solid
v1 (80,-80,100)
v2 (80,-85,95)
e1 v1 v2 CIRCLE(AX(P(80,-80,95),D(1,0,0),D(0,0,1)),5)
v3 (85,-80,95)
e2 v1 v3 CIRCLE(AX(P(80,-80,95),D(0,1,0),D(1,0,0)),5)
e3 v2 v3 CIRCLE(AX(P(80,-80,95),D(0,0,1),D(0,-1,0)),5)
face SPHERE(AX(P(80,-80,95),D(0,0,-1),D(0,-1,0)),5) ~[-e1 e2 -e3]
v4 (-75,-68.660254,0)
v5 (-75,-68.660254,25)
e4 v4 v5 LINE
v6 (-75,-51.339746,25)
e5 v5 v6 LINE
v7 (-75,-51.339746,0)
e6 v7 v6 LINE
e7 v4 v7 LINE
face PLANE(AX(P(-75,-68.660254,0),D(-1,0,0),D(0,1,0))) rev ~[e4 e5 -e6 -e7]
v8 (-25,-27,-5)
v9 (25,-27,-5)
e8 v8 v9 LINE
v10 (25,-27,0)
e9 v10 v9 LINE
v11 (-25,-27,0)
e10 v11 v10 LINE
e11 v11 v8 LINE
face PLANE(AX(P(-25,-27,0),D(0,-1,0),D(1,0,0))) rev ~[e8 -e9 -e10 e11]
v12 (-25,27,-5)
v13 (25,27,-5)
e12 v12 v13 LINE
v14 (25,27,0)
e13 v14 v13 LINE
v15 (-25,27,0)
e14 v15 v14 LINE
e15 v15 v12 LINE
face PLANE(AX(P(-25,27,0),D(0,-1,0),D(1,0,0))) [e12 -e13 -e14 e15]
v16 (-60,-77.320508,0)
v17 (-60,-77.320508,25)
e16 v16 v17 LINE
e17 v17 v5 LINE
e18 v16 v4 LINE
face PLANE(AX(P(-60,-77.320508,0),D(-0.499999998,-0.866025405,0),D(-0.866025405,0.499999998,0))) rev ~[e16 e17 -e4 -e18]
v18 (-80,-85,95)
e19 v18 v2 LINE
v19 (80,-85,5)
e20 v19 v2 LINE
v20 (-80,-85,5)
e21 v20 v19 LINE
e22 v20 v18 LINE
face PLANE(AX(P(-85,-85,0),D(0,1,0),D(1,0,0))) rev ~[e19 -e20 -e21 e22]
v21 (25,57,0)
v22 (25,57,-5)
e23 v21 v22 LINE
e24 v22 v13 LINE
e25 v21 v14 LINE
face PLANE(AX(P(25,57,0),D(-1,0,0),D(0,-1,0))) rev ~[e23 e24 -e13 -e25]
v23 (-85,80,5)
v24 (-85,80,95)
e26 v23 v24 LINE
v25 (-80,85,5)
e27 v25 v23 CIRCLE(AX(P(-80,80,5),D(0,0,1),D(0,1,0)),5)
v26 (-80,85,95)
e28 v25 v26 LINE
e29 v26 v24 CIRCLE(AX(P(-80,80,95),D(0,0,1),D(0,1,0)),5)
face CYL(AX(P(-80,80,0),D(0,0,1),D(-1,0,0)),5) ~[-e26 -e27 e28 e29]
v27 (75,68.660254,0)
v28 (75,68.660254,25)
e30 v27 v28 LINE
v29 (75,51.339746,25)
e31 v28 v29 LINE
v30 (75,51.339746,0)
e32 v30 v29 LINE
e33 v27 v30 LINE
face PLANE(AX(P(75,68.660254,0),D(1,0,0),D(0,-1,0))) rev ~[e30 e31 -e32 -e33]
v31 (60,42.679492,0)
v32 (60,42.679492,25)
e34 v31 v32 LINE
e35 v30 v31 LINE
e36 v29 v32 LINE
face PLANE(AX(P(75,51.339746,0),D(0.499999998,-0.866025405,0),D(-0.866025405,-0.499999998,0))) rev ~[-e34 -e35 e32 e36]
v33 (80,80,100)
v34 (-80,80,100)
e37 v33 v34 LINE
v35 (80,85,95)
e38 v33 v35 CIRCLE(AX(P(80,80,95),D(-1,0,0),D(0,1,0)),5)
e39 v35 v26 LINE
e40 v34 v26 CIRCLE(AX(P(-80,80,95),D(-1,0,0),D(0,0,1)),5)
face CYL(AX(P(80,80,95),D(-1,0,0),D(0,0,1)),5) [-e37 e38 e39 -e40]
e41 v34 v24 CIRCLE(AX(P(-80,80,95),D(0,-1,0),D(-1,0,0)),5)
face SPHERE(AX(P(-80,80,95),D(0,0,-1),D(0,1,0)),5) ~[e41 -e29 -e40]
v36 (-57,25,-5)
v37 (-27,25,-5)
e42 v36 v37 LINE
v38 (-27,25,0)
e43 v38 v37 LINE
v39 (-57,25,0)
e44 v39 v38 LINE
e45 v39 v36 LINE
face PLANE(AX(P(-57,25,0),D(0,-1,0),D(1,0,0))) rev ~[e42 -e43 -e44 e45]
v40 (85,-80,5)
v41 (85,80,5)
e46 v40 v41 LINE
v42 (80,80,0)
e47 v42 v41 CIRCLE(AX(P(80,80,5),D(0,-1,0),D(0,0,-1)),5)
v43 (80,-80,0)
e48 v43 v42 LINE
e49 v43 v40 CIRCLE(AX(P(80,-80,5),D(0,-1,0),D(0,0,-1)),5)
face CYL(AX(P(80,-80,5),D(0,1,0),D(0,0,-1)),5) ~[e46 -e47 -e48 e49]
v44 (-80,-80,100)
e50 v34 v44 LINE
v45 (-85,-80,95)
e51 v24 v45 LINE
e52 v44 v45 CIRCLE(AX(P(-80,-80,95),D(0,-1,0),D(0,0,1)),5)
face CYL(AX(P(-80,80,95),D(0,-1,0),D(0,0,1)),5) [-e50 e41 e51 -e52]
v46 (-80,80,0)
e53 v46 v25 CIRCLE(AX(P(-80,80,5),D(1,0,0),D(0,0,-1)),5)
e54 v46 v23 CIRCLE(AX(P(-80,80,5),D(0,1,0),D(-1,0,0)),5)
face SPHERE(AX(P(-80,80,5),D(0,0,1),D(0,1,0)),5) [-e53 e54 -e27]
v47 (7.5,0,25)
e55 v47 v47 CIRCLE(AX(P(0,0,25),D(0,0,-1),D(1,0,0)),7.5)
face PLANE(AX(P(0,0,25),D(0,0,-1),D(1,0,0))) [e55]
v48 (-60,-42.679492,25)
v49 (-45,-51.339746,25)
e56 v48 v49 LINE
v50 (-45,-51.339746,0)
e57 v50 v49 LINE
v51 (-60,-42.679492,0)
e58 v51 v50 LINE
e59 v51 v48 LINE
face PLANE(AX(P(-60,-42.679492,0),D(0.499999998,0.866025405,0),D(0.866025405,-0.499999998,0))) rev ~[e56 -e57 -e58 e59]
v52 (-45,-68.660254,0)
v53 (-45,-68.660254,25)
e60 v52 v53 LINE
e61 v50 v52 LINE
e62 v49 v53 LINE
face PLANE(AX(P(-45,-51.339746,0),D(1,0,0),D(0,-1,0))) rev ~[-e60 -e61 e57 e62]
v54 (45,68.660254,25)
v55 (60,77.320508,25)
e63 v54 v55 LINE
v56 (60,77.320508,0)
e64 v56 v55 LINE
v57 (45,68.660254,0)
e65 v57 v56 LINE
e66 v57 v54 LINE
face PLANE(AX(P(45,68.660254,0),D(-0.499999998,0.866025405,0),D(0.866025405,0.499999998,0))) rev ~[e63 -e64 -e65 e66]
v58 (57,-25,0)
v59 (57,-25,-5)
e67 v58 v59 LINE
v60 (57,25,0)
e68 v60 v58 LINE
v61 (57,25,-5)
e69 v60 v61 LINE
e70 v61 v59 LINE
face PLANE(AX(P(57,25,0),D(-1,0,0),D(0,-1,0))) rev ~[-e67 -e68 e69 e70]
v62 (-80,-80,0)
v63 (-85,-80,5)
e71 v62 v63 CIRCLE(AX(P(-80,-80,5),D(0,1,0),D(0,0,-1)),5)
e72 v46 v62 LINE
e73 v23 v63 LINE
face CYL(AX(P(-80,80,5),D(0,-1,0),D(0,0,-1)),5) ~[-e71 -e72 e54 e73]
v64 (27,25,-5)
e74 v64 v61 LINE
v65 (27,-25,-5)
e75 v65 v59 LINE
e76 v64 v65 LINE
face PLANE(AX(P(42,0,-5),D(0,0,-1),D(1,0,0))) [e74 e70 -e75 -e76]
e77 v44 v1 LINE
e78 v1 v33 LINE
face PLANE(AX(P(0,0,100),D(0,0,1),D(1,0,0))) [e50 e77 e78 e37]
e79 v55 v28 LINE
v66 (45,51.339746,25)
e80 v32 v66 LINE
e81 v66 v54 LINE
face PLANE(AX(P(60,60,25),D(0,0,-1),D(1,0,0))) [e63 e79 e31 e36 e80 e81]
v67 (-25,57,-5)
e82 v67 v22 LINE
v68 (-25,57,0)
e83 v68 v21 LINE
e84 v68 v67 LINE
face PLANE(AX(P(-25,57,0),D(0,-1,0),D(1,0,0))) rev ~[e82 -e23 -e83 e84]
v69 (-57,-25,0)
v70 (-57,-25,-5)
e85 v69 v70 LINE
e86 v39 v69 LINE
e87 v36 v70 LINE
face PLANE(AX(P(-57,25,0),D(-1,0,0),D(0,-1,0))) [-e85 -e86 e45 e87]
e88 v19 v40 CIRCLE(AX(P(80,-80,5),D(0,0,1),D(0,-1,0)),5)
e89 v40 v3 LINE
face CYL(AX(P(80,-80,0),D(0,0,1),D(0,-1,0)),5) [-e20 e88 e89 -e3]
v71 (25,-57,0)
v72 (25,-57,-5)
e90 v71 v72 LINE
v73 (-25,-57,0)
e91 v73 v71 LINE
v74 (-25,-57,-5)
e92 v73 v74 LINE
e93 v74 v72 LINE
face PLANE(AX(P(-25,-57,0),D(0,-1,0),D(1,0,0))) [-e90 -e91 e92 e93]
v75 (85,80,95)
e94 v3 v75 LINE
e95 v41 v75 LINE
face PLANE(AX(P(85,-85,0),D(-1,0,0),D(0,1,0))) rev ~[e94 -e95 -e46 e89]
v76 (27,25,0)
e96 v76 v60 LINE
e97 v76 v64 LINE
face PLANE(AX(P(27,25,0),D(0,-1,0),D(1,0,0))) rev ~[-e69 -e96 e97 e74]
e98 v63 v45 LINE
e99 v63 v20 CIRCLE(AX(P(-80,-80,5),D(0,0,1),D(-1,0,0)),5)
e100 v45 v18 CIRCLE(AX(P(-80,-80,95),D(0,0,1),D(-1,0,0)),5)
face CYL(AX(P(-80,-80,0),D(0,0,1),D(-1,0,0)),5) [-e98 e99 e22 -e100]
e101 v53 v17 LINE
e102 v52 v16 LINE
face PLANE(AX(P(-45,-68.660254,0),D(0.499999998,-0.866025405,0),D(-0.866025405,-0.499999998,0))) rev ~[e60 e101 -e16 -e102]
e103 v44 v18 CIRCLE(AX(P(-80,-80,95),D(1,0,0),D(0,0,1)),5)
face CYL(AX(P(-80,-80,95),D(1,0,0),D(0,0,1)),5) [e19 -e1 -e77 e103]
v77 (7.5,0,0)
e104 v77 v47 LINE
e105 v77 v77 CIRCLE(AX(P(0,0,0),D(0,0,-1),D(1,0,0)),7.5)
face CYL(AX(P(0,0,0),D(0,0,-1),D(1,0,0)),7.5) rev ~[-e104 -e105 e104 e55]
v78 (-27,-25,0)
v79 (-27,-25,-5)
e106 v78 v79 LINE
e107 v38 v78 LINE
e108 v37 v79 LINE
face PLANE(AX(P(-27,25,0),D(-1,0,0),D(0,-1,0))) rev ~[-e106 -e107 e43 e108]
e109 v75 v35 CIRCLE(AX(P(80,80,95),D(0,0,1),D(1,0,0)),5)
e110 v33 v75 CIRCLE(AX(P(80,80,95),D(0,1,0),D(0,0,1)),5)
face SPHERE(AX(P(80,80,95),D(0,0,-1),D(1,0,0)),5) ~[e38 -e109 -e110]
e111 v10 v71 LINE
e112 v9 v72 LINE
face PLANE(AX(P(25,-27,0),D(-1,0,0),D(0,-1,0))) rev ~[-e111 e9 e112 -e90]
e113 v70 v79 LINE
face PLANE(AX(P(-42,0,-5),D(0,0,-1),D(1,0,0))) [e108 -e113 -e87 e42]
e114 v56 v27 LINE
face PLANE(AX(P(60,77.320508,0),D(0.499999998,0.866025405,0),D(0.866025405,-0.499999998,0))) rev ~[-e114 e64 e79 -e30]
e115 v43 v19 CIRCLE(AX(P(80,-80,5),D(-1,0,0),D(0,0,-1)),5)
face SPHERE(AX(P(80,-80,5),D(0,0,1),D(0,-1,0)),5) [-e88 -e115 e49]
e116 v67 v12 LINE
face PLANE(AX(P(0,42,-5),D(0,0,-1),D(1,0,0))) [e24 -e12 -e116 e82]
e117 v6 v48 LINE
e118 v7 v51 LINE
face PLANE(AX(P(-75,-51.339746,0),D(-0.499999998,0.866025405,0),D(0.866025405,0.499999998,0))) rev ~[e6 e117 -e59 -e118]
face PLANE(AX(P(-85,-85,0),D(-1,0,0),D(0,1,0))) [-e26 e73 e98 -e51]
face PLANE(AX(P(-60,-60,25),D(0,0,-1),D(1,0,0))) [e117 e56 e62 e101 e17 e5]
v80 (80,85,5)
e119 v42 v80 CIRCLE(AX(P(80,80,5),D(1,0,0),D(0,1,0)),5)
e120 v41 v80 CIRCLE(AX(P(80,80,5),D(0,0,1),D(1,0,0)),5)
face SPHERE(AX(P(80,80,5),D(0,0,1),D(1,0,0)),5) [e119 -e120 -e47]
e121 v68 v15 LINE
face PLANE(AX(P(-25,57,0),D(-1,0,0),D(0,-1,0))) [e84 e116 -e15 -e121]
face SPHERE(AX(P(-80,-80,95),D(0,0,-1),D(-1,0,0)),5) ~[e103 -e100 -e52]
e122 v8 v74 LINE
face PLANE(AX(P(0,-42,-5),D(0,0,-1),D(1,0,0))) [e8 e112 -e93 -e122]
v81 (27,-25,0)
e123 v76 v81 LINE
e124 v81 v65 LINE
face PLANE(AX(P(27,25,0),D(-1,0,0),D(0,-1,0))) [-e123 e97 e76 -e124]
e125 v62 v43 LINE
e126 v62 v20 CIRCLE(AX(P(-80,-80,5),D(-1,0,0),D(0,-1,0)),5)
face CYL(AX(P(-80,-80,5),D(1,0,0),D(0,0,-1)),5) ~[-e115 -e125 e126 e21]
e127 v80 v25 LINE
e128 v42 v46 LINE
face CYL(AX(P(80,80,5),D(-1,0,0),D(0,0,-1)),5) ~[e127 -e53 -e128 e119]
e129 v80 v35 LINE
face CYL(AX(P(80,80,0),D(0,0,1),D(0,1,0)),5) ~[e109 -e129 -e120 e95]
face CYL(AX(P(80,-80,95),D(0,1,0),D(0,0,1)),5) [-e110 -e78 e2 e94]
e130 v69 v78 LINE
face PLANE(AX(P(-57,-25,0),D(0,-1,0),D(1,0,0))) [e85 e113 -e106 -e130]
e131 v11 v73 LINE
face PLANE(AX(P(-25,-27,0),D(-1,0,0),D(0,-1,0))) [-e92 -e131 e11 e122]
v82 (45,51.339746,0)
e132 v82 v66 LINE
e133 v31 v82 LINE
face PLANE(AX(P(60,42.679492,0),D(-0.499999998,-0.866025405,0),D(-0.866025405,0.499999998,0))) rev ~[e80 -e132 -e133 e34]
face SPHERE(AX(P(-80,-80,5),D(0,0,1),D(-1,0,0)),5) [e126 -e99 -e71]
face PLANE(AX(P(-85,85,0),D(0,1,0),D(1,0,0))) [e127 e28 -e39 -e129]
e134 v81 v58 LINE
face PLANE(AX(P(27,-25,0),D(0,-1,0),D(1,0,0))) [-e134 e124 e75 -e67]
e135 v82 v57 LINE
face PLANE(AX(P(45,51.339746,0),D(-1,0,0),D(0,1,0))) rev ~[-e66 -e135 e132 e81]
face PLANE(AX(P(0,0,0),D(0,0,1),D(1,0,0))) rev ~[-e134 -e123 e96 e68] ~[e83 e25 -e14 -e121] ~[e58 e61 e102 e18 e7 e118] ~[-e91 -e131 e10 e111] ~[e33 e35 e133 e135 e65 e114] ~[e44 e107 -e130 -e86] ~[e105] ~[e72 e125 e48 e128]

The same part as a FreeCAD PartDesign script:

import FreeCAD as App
import Part
import Sketcher
from FreeCAD import Vector
Q = App.Units.Quantity


def edges_at(feature, points):
    """Names of the edges that pass closest to the given points."""
    edges = feature.Shape.Edges
    near = lambda p: min(range(len(edges)), key=lambda i: edges[i].distToShape(Part.Vertex(*p))[0])
    return sorted({f"Edge{near(p) + 1}" for p in points})

doc = App.newDocument("Part")
params = doc.addObject("Spreadsheet::Sheet", "Params")
for row, (alias, value) in enumerate([
    ("sketch1_width", "170 mm"),
    ("pad1_length", "100 mm"),
    ("sketch2_diameter", "15 mm"),
    ("pocket1_length", "25 mm"),
    ("fillet_radius", "5 mm"),
    ("fillet2_radius", "5 mm"),
    ("sketch3_width", "50 mm"),
    ("sketch3_width2", "30 mm"),
    ("pad2_length", "5 mm"),
], start=1):
    params.set(f"A{row}", alias)
    params.set(f"B{row}", "=" + value)
    params.setAlias(f"B{row}", alias)

body = doc.addObject("PartDesign::Body", "Body")

sketch1 = body.newObject("Sketcher::SketchObject", "Sketch")
sketch1.AttachmentSupport = (doc.getObject("XY_Plane"), [""])
sketch1.MapMode = "FlatFace"
sketch1.addGeometry([
    Part.LineSegment(Vector(-85, 85, 0), Vector(-85, -85, 0)),
    Part.LineSegment(Vector(-85, -85, 0), Vector(85, -85, 0)),
    Part.LineSegment(Vector(85, -85, 0), Vector(85, 85, 0)),
    Part.LineSegment(Vector(85, 85, 0), Vector(-85, 85, 0)),
], False)
sketch1.addConstraint([
    Sketcher.Constraint("Coincident", 0, 2, 1, 1),
    Sketcher.Constraint("Coincident", 1, 2, 2, 1),
    Sketcher.Constraint("Coincident", 2, 2, 3, 1),
    Sketcher.Constraint("Coincident", 3, 2, 0, 1),
    Sketcher.Constraint("Vertical", 0),
    Sketcher.Constraint("Horizontal", 1),
    Sketcher.Constraint("Vertical", 2),
    Sketcher.Constraint("Horizontal", 3),
    Sketcher.Constraint("Symmetric", 0, 2, 2, 2, -1, 1),
    Sketcher.Constraint("Equal", 3, 0),
    Sketcher.Constraint("DistanceX", 1, 1, 1, 2, Q("170 mm")),
])
sketch1.setExpression("Constraints[10]", "Params.sketch1_width")
pad1 = body.newObject("PartDesign::Pad", "Pad")
pad1.Profile = sketch1
pad1.setExpression("Length", "Params.pad1_length")

sketch2 = body.newObject("Sketcher::SketchObject", "Sketch001")
sketch2.AttachmentSupport = (doc.getObject("XY_Plane"), [""])
sketch2.MapMode = "FlatFace"
sketch2.addGeometry([
    Part.Circle(Vector(0, 0, 0), Vector(0, 0, 1), 8),
    Part.LineSegment(Vector(-60, -77, 0), Vector(-75, -69, 0)),
    Part.LineSegment(Vector(-75, -69, 0), Vector(-75, -51, 0)),
    Part.LineSegment(Vector(-75, -51, 0), Vector(-60, -43, 0)),
    Part.LineSegment(Vector(-60, -43, 0), Vector(-45, -51, 0)),
    Part.LineSegment(Vector(-45, -51, 0), Vector(-45, -69, 0)),
    Part.LineSegment(Vector(-45, -69, 0), Vector(-60, -77, 0)),
    Part.LineSegment(Vector(60, 77, 0), Vector(75, 69, 0)),
    Part.LineSegment(Vector(75, 69, 0), Vector(75, 51, 0)),
    Part.LineSegment(Vector(75, 51, 0), Vector(60, 43, 0)),
    Part.LineSegment(Vector(60, 43, 0), Vector(45, 51, 0)),
    Part.LineSegment(Vector(45, 51, 0), Vector(45, 69, 0)),
    Part.LineSegment(Vector(45, 69, 0), Vector(60, 77, 0)),
], False)
sketch2.addConstraint([
    Sketcher.Constraint("Coincident", 1, 2, 2, 1),
    Sketcher.Constraint("Coincident", 2, 2, 3, 1),
    Sketcher.Constraint("Coincident", 3, 2, 4, 1),
    Sketcher.Constraint("Coincident", 4, 2, 5, 1),
    Sketcher.Constraint("Coincident", 5, 2, 6, 1),
    Sketcher.Constraint("Coincident", 6, 2, 1, 1),
    Sketcher.Constraint("Coincident", 7, 2, 8, 1),
    Sketcher.Constraint("Coincident", 8, 2, 9, 1),
    Sketcher.Constraint("Coincident", 9, 2, 10, 1),
    Sketcher.Constraint("Coincident", 10, 2, 11, 1),
    Sketcher.Constraint("Coincident", 11, 2, 12, 1),
    Sketcher.Constraint("Coincident", 12, 2, 7, 1),
    Sketcher.Constraint("Vertical", 2),
    Sketcher.Constraint("Vertical", 5),
    Sketcher.Constraint("Vertical", 8),
    Sketcher.Constraint("Vertical", 11),
    Sketcher.Constraint("Coincident", 0, 3, -1, 1),
    Sketcher.Constraint("Symmetric", 1, 2, 7, 2, -1, 1),
    Sketcher.Constraint("Symmetric", 3, 2, 9, 2, -1, 1),
    Sketcher.Constraint("Symmetric", 4, 2, 10, 2, -1, 1),
    Sketcher.Constraint("Symmetric", 6, 2, 12, 2, -1, 1),
    Sketcher.Constraint("Parallel", 1, 4),
    Sketcher.Constraint("Parallel", 3, 6),
    Sketcher.Constraint("Parallel", 6, 9),
    Sketcher.Constraint("Parallel", 9, 12),
    Sketcher.Constraint("Horizontal", 2, 2, 4, 2),
    Sketcher.Constraint("Horizontal", 1, 2, 5, 2),
    Sketcher.Constraint("Vertical", 3, 2, 6, 2),
    Sketcher.Constraint("Diameter", 0, Q("15 mm")),
    Sketcher.Constraint("Angle", 1, Q("150 deg")),
    Sketcher.Constraint("DistanceX", 1, 2, -1, 1, Q("75 mm")),
    Sketcher.Constraint("DistanceX", 3, 2, -1, 1, Q("60 mm")),
    Sketcher.Constraint("DistanceY", 4, 2, 7, 2, Q("120 mm")),
    Sketcher.Constraint("DistanceY", 2, 1, 2, 2, Q("17.320508 mm")),
])
sketch2.setExpression("Constraints[28]", "Params.sketch2_diameter")
pocket1 = body.newObject("PartDesign::Pocket", "Pocket")
pocket1.Profile = sketch2
pocket1.setExpression("Length", "Params.pocket1_length")
pocket1.Reversed = True
doc.recompute()

fillet = body.newObject("PartDesign::Fillet", "Fillet")
fillet.Base = (pocket1, edges_at(pocket1, [
    (-85, -85, 50),
    (85, -85, 50),
    (85, 85, 50),
    (-85, 85, 50),
]))
fillet.setExpression("Radius", "Params.fillet_radius")
doc.recompute()

fillet2 = body.newObject("PartDesign::Fillet", "Fillet001")
fillet2.Base = (fillet, edges_at(fillet, [(0, -85, 100), (85, 0, 0)]))
fillet2.setExpression("Radius", "Params.fillet2_radius")

sketch3 = body.newObject("Sketcher::SketchObject", "Sketch002")
sketch3.AttachmentSupport = (doc.getObject("XY_Plane"), [""])
sketch3.MapMode = "FlatFace"
sketch3.addGeometry([
    Part.LineSegment(Vector(-25, -57, 0), Vector(-25, -27, 0)),
    Part.LineSegment(Vector(-25, -27, 0), Vector(25, -27, 0)),
    Part.LineSegment(Vector(25, -27, 0), Vector(25, -57, 0)),
    Part.LineSegment(Vector(25, -57, 0), Vector(-25, -57, 0)),
    Part.LineSegment(Vector(27, -25, 0), Vector(27, 25, 0)),
    Part.LineSegment(Vector(27, 25, 0), Vector(57, 25, 0)),
    Part.LineSegment(Vector(57, 25, 0), Vector(57, -25, 0)),
    Part.LineSegment(Vector(57, -25, 0), Vector(27, -25, 0)),
    Part.LineSegment(Vector(-57, -25, 0), Vector(-57, 25, 0)),
    Part.LineSegment(Vector(-57, 25, 0), Vector(-27, 25, 0)),
    Part.LineSegment(Vector(-27, 25, 0), Vector(-27, -25, 0)),
    Part.LineSegment(Vector(-27, -25, 0), Vector(-57, -25, 0)),
    Part.LineSegment(Vector(-25, 27, 0), Vector(-25, 57, 0)),
    Part.LineSegment(Vector(-25, 57, 0), Vector(25, 57, 0)),
    Part.LineSegment(Vector(25, 57, 0), Vector(25, 27, 0)),
    Part.LineSegment(Vector(25, 27, 0), Vector(-25, 27, 0)),
], False)
sketch3.addConstraint([
    Sketcher.Constraint("Coincident", 0, 2, 1, 1),
    Sketcher.Constraint("Coincident", 1, 2, 2, 1),
    Sketcher.Constraint("Coincident", 2, 2, 3, 1),
    Sketcher.Constraint("Coincident", 3, 2, 0, 1),
    Sketcher.Constraint("Coincident", 4, 2, 5, 1),
    Sketcher.Constraint("Coincident", 5, 2, 6, 1),
    Sketcher.Constraint("Coincident", 6, 2, 7, 1),
    Sketcher.Constraint("Coincident", 7, 2, 4, 1),
    Sketcher.Constraint("Coincident", 8, 2, 9, 1),
    Sketcher.Constraint("Coincident", 9, 2, 10, 1),
    Sketcher.Constraint("Coincident", 10, 2, 11, 1),
    Sketcher.Constraint("Coincident", 11, 2, 8, 1),
    Sketcher.Constraint("Coincident", 12, 2, 13, 1),
    Sketcher.Constraint("Coincident", 13, 2, 14, 1),
    Sketcher.Constraint("Coincident", 14, 2, 15, 1),
    Sketcher.Constraint("Coincident", 15, 2, 12, 1),
    Sketcher.Constraint("Vertical", 0),
    Sketcher.Constraint("Horizontal", 1),
    Sketcher.Constraint("Vertical", 2),
    Sketcher.Constraint("Horizontal", 3),
    Sketcher.Constraint("Vertical", 4),
    Sketcher.Constraint("Horizontal", 5),
    Sketcher.Constraint("Vertical", 6),
    Sketcher.Constraint("Horizontal", 7),
    Sketcher.Constraint("Vertical", 8),
    Sketcher.Constraint("Horizontal", 9),
    Sketcher.Constraint("Vertical", 10),
    Sketcher.Constraint("Horizontal", 11),
    Sketcher.Constraint("Vertical", 12),
    Sketcher.Constraint("Horizontal", 13),
    Sketcher.Constraint("Vertical", 14),
    Sketcher.Constraint("Horizontal", 15),
    Sketcher.Constraint("Symmetric", 6, 2, 8, 2, -1, 1),
    Sketcher.Constraint("Symmetric", 4, 2, 10, 2, -1, 1),
    Sketcher.Constraint("Symmetric", 2, 2, 12, 2, -1, 1),
    Sketcher.Constraint("Symmetric", 0, 2, 14, 2, -1, 1),
    Sketcher.Constraint("Horizontal", 5, 2, 8, 2),
    Sketcher.Constraint("Vertical", 3, 2, 12, 2),
    Sketcher.Constraint("Equal", 11, 0),
    Sketcher.Constraint("Equal", 15, 4),
    Sketcher.Constraint("DistanceX", 1, 1, 1, 2, Q("50 mm")),
    Sketcher.Constraint("DistanceX", 5, 1, 5, 2, Q("30 mm")),
    Sketcher.Constraint("DistanceY", 0, 2, -1, 1, Q("27 mm")),
    Sketcher.Constraint("DistanceX", -1, 1, 4, 2, Q("27 mm")),
])
sketch3.setExpression("Constraints[40]", "Params.sketch3_width")
sketch3.setExpression("Constraints[41]", "Params.sketch3_width2")
pad2 = body.newObject("PartDesign::Pad", "Pad001")
pad2.Profile = sketch3
pad2.setExpression("Length", "Params.pad2_length")
pad2.Reversed = True

doc.recompute()
